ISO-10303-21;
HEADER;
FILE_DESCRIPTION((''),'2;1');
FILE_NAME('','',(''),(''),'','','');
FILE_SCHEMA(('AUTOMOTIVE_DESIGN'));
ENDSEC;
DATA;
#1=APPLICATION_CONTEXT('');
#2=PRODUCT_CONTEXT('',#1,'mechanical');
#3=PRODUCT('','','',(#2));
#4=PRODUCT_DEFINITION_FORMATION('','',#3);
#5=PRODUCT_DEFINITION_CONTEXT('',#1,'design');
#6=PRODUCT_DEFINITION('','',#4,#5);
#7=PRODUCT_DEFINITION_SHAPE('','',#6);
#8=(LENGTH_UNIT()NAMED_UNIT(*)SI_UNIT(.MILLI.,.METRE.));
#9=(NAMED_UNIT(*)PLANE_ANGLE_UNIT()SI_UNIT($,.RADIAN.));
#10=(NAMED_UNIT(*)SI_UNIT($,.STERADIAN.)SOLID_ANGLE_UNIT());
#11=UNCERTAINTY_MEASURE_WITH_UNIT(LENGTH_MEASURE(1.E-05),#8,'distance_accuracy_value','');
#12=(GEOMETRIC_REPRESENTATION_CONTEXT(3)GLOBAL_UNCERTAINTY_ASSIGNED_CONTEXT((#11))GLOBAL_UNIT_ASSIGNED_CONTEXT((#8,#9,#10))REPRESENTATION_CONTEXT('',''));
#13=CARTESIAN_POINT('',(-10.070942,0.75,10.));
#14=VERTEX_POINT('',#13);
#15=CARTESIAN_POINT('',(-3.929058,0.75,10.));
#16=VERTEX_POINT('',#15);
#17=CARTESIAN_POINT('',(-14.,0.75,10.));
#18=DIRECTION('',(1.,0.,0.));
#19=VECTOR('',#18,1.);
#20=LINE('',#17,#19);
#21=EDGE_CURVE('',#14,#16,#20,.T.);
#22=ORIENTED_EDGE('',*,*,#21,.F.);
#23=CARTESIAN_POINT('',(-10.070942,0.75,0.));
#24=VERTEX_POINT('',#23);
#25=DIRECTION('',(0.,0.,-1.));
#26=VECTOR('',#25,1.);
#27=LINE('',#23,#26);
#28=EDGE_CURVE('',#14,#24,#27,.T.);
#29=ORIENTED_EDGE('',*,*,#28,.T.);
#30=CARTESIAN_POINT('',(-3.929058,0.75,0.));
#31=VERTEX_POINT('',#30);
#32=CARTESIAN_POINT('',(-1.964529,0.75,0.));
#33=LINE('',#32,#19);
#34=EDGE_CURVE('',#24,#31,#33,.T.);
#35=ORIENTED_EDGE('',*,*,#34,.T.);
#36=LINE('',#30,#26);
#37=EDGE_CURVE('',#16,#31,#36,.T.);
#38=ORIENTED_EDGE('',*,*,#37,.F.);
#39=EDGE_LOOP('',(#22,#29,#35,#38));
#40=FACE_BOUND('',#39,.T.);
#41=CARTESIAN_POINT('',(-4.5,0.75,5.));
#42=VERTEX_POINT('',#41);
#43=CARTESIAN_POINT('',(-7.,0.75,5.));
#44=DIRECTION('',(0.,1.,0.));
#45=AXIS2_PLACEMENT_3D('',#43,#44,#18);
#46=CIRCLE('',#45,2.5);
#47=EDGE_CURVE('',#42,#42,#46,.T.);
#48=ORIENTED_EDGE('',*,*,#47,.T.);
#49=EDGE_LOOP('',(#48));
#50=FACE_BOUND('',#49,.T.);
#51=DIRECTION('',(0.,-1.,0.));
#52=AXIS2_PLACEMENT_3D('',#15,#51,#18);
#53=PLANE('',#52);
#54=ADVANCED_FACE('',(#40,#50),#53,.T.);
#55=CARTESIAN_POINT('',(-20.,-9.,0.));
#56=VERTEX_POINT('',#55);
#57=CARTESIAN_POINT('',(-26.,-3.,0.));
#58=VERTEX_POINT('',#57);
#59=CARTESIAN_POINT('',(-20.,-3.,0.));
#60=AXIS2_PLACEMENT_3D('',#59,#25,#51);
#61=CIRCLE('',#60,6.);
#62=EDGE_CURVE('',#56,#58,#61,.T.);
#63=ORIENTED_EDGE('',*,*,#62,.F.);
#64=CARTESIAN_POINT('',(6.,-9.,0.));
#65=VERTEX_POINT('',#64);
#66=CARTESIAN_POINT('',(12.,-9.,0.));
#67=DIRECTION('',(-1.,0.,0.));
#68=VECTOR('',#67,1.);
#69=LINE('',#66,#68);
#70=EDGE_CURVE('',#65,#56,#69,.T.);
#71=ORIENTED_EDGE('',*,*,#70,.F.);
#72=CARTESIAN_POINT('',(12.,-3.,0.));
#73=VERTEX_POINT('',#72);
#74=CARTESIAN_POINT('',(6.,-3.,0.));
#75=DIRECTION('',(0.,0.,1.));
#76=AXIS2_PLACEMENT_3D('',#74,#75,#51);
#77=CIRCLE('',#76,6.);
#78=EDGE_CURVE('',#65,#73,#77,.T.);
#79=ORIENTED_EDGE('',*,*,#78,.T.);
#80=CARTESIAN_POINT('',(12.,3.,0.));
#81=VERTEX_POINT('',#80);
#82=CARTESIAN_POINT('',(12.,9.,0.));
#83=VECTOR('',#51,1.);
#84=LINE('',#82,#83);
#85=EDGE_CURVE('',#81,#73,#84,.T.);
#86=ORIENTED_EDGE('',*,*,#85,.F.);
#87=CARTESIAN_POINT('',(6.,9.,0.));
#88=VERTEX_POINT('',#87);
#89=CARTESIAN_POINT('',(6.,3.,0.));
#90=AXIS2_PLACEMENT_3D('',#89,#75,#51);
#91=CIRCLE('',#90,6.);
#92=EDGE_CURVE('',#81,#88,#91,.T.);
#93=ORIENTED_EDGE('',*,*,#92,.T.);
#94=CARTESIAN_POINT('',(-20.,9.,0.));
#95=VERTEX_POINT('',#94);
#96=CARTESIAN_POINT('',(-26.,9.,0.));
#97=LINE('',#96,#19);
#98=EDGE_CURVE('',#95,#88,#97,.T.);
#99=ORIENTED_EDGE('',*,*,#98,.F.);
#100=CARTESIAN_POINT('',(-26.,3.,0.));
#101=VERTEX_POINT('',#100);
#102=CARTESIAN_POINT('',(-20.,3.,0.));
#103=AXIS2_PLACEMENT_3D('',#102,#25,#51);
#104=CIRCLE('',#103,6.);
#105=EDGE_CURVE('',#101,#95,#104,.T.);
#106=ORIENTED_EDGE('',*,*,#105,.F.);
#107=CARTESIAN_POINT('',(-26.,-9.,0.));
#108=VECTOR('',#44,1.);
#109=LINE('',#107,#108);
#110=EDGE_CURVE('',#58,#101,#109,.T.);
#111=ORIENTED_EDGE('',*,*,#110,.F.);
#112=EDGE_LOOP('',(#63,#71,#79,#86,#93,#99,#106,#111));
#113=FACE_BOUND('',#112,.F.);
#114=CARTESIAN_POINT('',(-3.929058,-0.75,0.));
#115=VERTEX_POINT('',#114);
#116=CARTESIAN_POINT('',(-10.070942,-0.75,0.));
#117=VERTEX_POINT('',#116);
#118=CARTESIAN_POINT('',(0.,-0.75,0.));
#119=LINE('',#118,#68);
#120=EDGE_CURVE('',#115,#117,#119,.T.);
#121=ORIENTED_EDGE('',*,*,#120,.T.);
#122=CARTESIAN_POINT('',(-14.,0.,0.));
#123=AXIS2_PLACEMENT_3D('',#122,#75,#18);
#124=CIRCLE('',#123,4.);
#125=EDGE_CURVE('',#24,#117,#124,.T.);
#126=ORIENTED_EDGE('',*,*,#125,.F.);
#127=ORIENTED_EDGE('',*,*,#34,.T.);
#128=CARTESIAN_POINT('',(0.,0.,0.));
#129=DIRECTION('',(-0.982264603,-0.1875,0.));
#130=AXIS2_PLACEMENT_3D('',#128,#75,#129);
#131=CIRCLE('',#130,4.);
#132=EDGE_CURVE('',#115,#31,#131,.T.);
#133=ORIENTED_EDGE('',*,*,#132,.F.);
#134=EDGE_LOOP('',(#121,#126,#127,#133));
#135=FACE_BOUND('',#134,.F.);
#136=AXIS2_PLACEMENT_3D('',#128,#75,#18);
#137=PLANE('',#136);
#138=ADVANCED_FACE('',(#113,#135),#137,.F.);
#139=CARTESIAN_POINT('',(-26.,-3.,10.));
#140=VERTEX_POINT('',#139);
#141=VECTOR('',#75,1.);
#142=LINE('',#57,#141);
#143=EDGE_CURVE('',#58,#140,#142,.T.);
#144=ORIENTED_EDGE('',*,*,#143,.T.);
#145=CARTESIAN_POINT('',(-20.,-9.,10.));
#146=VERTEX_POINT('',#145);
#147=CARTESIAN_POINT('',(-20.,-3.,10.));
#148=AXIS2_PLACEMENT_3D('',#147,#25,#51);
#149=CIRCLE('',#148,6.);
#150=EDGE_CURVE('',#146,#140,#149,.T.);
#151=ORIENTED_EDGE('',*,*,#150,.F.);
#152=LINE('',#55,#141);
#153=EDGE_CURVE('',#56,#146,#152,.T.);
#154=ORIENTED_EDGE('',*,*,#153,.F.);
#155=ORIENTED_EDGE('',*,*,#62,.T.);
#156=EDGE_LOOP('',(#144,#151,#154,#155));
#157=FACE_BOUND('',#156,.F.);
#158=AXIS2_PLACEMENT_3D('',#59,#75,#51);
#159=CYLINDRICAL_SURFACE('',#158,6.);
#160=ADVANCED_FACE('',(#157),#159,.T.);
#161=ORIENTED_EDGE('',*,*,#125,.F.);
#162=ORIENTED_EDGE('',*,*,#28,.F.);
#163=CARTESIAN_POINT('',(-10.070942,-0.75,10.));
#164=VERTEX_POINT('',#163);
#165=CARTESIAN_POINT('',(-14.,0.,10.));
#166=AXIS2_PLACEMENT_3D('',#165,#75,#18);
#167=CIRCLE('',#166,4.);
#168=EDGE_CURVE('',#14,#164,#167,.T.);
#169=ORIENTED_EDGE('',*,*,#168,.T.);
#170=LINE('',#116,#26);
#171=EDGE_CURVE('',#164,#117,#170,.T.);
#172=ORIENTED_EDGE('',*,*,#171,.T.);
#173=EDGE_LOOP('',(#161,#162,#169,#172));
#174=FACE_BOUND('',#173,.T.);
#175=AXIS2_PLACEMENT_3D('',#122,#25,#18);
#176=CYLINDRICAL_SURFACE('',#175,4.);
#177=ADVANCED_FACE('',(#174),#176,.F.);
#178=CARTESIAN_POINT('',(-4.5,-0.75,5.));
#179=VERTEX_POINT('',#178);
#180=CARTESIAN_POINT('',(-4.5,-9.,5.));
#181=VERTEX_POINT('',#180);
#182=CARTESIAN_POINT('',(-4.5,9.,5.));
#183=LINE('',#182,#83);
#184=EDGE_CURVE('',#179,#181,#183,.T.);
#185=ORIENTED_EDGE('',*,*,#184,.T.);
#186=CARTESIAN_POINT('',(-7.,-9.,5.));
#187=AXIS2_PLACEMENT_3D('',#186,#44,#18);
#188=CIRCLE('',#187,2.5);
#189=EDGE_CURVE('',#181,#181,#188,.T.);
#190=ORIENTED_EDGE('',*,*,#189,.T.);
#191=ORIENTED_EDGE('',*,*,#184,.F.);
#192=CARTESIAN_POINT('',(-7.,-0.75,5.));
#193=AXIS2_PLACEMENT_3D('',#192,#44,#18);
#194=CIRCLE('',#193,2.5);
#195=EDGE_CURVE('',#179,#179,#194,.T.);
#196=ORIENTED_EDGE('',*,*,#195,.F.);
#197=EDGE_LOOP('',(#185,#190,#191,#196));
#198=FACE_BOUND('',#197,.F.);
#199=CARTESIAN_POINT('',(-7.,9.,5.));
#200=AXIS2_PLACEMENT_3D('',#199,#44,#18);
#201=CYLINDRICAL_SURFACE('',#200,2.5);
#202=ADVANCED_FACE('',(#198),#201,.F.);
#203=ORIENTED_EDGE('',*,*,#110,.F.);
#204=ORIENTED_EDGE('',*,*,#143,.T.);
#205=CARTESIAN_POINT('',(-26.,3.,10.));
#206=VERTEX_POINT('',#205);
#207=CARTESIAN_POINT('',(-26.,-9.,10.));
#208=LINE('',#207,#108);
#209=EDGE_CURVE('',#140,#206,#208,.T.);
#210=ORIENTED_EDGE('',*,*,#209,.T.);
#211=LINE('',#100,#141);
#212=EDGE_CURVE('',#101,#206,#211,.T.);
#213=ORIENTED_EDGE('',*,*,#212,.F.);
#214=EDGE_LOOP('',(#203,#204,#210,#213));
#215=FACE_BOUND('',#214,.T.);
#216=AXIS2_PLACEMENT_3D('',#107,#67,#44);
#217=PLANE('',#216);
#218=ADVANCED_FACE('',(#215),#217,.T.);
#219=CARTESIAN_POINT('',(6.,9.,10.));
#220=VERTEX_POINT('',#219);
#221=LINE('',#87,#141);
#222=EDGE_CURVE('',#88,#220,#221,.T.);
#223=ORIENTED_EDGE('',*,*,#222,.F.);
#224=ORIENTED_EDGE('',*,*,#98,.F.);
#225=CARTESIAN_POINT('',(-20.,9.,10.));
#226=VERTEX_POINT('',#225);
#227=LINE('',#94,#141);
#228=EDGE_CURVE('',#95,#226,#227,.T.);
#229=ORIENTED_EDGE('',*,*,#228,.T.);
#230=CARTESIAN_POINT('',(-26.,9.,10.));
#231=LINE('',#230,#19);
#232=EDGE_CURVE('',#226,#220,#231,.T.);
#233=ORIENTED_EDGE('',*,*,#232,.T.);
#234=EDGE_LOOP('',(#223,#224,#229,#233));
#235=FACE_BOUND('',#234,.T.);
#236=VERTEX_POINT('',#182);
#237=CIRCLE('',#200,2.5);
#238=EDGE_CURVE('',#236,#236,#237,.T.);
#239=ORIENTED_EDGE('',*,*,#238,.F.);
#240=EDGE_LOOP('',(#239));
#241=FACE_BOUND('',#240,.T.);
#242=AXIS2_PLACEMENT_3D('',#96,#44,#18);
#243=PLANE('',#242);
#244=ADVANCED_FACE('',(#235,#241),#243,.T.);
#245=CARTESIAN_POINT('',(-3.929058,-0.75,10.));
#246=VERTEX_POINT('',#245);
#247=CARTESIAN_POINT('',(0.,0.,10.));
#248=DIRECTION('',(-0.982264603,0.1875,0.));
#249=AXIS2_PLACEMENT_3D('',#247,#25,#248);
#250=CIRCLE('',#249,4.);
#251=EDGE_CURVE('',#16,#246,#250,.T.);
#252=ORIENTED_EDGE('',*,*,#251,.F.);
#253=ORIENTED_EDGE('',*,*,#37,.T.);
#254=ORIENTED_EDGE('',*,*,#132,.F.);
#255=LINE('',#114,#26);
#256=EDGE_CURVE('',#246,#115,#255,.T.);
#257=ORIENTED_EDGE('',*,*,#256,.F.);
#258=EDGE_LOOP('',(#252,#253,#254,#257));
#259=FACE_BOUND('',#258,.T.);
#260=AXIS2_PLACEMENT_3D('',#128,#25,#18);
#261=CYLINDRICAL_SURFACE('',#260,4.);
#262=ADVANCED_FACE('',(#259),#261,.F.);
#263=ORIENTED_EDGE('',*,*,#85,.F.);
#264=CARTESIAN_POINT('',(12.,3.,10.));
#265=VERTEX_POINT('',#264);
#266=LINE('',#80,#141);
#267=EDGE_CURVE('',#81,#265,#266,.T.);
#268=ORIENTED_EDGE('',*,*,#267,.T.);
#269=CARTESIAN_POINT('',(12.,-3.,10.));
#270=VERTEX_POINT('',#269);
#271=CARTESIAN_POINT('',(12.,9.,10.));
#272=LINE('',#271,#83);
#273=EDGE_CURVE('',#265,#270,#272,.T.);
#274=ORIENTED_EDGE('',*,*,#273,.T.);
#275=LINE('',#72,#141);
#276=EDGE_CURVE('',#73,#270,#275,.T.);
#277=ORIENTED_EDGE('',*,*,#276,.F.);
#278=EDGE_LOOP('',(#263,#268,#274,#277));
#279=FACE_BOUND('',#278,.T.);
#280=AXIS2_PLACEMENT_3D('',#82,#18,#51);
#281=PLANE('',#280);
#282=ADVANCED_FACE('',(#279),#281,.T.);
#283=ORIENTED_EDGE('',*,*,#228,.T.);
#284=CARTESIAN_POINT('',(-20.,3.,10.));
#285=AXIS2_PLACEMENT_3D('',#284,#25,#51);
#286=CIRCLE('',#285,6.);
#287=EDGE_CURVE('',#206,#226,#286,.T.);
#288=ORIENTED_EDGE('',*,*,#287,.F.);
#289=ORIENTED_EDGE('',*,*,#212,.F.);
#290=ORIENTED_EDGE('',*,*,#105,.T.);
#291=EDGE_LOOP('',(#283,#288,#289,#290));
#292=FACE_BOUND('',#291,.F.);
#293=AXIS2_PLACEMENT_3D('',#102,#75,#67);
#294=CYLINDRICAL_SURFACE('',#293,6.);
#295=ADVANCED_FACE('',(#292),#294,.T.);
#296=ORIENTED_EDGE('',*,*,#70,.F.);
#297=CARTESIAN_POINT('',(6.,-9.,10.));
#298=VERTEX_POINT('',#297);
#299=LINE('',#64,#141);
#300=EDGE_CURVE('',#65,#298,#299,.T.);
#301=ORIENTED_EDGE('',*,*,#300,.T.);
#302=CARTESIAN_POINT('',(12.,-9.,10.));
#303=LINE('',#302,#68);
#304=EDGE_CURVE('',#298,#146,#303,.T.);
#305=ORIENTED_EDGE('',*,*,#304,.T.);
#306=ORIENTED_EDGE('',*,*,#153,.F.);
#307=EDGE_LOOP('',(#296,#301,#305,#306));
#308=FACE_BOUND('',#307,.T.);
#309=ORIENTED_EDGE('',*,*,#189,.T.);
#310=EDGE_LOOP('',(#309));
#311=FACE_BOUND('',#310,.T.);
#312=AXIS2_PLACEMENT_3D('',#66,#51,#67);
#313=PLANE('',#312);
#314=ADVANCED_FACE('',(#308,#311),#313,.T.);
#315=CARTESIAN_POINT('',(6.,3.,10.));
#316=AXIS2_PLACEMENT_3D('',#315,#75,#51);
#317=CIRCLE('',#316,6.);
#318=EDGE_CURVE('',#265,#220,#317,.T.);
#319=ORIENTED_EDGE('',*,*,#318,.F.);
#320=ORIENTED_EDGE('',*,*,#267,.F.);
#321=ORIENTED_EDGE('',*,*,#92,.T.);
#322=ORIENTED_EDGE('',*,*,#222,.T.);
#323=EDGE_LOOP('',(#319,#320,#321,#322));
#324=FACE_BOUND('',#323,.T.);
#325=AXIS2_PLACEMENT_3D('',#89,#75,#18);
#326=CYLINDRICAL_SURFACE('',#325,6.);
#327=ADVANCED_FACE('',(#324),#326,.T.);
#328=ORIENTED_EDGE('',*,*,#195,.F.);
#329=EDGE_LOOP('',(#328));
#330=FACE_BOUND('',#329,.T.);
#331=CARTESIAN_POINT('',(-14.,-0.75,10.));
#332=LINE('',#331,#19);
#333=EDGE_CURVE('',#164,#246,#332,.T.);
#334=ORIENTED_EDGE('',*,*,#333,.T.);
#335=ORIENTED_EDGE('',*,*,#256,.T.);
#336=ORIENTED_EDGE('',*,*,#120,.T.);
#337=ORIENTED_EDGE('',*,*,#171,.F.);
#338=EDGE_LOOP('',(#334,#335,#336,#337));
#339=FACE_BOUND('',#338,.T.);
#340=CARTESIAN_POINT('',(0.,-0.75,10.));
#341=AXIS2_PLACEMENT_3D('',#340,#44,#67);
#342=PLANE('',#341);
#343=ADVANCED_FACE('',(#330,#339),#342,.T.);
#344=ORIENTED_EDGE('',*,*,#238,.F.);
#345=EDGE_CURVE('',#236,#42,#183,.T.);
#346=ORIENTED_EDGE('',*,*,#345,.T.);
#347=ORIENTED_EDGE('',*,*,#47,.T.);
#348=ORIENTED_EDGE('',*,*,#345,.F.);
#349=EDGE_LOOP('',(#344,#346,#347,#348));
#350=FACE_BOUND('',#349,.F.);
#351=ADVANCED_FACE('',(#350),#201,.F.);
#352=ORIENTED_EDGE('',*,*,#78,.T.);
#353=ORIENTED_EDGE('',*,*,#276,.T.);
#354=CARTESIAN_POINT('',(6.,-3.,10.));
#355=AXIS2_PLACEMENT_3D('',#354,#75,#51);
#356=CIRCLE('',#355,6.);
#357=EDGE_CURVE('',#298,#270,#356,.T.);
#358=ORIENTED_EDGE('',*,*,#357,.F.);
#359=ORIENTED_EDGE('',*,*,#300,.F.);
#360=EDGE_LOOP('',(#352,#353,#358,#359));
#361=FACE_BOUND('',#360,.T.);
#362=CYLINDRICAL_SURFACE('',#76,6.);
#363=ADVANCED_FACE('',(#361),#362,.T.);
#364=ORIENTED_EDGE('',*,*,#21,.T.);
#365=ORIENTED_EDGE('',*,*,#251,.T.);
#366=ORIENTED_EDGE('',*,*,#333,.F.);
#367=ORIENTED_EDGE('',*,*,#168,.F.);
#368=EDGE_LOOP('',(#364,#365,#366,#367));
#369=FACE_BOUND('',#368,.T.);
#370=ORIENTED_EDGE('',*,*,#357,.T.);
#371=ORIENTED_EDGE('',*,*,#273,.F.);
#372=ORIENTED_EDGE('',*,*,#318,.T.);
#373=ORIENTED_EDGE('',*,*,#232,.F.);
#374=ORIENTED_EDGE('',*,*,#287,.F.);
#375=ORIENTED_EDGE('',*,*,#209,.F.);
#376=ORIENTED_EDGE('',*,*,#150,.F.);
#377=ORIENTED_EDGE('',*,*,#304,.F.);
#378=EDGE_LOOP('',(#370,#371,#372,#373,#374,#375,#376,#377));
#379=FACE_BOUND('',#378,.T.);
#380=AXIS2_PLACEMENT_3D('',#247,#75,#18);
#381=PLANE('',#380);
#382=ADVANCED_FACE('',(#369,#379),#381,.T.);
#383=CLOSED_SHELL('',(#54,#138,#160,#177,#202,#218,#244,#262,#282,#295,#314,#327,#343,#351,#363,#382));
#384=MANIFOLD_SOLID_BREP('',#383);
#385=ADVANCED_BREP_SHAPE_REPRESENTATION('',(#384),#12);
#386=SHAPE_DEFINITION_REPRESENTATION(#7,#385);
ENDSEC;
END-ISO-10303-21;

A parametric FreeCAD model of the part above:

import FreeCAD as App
import Part
import Sketcher
Q = App.Units.Quantity


def edges_at(feature, points):
    """Names of the edges that pass closest to the given points."""
    edges = feature.Shape.Edges
    near = lambda p: min(range(len(edges)), key=lambda i: edges[i].distToShape(Part.Vertex(*p))[0])
    return sorted({f"Edge{near(p) + 1}" for p in points})

doc = App.newDocument("Part")
body = doc.addObject("PartDesign::Body", "Body")

sketch1 = body.newObject("Sketcher::SketchObject", "Sketch")
sketch1.AttachmentSupport = (doc.getObject("XY_Plane"), [""])
sketch1.MapMode = "FlatFace"
sketch1.addGeometry([
    Part.LineSegment(App.Vector(-26, -9, 0), App.Vector(12, -9, 0)),
    Part.LineSegment(App.Vector(12, -9, 0), App.Vector(12, 9, 0)),
    Part.LineSegment(App.Vector(12, 9, 0), App.Vector(-26, 9, 0)),
    Part.LineSegment(App.Vector(-26, 9, 0), App.Vector(-26, -9, 0)),
    Part.Circle(App.Vector(-14, 0, 0), App.Vector(0, 0, 1), 4),
    Part.Circle(App.Vector(0, 0, 0), App.Vector(0, 0, 1), 4),
], False)
sketch1.addConstraint([
    Sketcher.Constraint("Coincident", 0, 2, 1, 1),
    Sketcher.Constraint("Coincident", 1, 2, 2, 1),
    Sketcher.Constraint("Coincident", 2, 2, 3, 1),
    Sketcher.Constraint("Coincident", 3, 2, 0, 1),
    Sketcher.Constraint("Horizontal", 0),
    Sketcher.Constraint("Vertical", 1),
    Sketcher.Constraint("Horizontal", 2),
    Sketcher.Constraint("Vertical", 3),
    Sketcher.Constraint("Coincident", 5, 3, -1, 1),
    Sketcher.Constraint("Equal", 4, 5),
    Sketcher.Constraint("PointOnObject", 4, 3, -1),
    Sketcher.Constraint("Diameter", 4, Q("8 mm")),
    Sketcher.Constraint("DistanceX", 0, 1, 0, 2, Q("38 mm")),
    Sketcher.Constraint("DistanceY", 1, 1, 1, 2, Q("18 mm")),
    Sketcher.Constraint("DistanceX", 4, 3, -1, 1, Q("14 mm")),
    Sketcher.Constraint("DistanceX", -1, 1, 0, 2, Q("12 mm")),
    Sketcher.Constraint("DistanceY", 0, 2, -1, 1, Q("9 mm")),
])
pad1 = body.newObject("PartDesign::Pad", "Pad")
pad1.Profile = sketch1
pad1.Length = 10

sketch2 = body.newObject("Sketcher::SketchObject", "Sketch001")
sketch2.AttachmentSupport = (doc.getObject("XZ_Plane"), [""])
sketch2.MapMode = "FlatFace"
sketch2.AttachmentOffset = App.Placement(App.Vector(0, 0, -9), App.Rotation())
sketch2.addGeometry(Part.Circle(App.Vector(-7, 5, 0), App.Vector(0, 0, 1), 2.5), False)
sketch2.addConstraint([
    Sketcher.Constraint("Diameter", 0, Q("5 mm")),
    Sketcher.Constraint("DistanceY", -1, 1, 0, 3, Q("5 mm")),
    Sketcher.Constraint("DistanceX", 0, 3, -1, 1, Q("7 mm")),
])
pocket1 = body.newObject("PartDesign::Pocket", "Pocket")
pocket1.Profile = sketch2
pocket1.Type = "ThroughAll"
pocket1.Reversed = True
doc.recompute()

fillet = body.newObject("PartDesign::Fillet", "Fillet")
fillet.Base = (pocket1, edges_at(pocket1, [
    (12, 9, 5),
    (-26, 9, 5),
    (-26, -9, 5),
    (12, -9, 5),
]))
fillet.Radius = 6

sketch3 = body.newObject("Sketcher::SketchObject", "Sketch002")
sketch3.AttachmentSupport = (doc.getObject("XY_Plane"), [""])
sketch3.MapMode = "FlatFace"
sketch3.AttachmentOffset = App.Placement(App.Vector(0, 0, 10), App.Rotation())
sketch3.addGeometry([
    Part.LineSegment(App.Vector(0, 0.8, 0), App.Vector(-14, 0.8, 0)),
    Part.LineSegment(App.Vector(-14, 0.8, 0), App.Vector(-14, -0.8, 0)),
    Part.LineSegment(App.Vector(-14, -0.8, 0), App.Vector(0, -0.8, 0)),
    Part.LineSegment(App.Vector(0, -0.8, 0), App.Vector(0, 0.8, 0)),
], False)
sketch3.addConstraint([
    Sketcher.Constraint("Coincident", 0, 2, 1, 1),
    Sketcher.Constraint("Coincident", 1, 2, 2, 1),
    Sketcher.Constraint("Coincident", 2, 2, 3, 1),
    Sketcher.Constraint("Coincident", 3, 2, 0, 1),
    Sketcher.Constraint("Horizontal", 0),
    Sketcher.Constraint("Vertical", 1),
    Sketcher.Constraint("Horizontal", 2),
    Sketcher.Constraint("Vertical", 3),
    Sketcher.Constraint("Symmetric", 2, 2, 3, 2, -1, 1),
    Sketcher.Constraint("DistanceY", 1, 2, 1, 1, Q("1.5 mm")),
    Sketcher.Constraint("DistanceX", 0, 2, 0, 1, Q("14 mm")),
])
pocket2 = body.newObject("PartDesign::Pocket", "Pocket001")
pocket2.Profile = sketch3
pocket2.Type = "ThroughAll"

doc.recompute()
